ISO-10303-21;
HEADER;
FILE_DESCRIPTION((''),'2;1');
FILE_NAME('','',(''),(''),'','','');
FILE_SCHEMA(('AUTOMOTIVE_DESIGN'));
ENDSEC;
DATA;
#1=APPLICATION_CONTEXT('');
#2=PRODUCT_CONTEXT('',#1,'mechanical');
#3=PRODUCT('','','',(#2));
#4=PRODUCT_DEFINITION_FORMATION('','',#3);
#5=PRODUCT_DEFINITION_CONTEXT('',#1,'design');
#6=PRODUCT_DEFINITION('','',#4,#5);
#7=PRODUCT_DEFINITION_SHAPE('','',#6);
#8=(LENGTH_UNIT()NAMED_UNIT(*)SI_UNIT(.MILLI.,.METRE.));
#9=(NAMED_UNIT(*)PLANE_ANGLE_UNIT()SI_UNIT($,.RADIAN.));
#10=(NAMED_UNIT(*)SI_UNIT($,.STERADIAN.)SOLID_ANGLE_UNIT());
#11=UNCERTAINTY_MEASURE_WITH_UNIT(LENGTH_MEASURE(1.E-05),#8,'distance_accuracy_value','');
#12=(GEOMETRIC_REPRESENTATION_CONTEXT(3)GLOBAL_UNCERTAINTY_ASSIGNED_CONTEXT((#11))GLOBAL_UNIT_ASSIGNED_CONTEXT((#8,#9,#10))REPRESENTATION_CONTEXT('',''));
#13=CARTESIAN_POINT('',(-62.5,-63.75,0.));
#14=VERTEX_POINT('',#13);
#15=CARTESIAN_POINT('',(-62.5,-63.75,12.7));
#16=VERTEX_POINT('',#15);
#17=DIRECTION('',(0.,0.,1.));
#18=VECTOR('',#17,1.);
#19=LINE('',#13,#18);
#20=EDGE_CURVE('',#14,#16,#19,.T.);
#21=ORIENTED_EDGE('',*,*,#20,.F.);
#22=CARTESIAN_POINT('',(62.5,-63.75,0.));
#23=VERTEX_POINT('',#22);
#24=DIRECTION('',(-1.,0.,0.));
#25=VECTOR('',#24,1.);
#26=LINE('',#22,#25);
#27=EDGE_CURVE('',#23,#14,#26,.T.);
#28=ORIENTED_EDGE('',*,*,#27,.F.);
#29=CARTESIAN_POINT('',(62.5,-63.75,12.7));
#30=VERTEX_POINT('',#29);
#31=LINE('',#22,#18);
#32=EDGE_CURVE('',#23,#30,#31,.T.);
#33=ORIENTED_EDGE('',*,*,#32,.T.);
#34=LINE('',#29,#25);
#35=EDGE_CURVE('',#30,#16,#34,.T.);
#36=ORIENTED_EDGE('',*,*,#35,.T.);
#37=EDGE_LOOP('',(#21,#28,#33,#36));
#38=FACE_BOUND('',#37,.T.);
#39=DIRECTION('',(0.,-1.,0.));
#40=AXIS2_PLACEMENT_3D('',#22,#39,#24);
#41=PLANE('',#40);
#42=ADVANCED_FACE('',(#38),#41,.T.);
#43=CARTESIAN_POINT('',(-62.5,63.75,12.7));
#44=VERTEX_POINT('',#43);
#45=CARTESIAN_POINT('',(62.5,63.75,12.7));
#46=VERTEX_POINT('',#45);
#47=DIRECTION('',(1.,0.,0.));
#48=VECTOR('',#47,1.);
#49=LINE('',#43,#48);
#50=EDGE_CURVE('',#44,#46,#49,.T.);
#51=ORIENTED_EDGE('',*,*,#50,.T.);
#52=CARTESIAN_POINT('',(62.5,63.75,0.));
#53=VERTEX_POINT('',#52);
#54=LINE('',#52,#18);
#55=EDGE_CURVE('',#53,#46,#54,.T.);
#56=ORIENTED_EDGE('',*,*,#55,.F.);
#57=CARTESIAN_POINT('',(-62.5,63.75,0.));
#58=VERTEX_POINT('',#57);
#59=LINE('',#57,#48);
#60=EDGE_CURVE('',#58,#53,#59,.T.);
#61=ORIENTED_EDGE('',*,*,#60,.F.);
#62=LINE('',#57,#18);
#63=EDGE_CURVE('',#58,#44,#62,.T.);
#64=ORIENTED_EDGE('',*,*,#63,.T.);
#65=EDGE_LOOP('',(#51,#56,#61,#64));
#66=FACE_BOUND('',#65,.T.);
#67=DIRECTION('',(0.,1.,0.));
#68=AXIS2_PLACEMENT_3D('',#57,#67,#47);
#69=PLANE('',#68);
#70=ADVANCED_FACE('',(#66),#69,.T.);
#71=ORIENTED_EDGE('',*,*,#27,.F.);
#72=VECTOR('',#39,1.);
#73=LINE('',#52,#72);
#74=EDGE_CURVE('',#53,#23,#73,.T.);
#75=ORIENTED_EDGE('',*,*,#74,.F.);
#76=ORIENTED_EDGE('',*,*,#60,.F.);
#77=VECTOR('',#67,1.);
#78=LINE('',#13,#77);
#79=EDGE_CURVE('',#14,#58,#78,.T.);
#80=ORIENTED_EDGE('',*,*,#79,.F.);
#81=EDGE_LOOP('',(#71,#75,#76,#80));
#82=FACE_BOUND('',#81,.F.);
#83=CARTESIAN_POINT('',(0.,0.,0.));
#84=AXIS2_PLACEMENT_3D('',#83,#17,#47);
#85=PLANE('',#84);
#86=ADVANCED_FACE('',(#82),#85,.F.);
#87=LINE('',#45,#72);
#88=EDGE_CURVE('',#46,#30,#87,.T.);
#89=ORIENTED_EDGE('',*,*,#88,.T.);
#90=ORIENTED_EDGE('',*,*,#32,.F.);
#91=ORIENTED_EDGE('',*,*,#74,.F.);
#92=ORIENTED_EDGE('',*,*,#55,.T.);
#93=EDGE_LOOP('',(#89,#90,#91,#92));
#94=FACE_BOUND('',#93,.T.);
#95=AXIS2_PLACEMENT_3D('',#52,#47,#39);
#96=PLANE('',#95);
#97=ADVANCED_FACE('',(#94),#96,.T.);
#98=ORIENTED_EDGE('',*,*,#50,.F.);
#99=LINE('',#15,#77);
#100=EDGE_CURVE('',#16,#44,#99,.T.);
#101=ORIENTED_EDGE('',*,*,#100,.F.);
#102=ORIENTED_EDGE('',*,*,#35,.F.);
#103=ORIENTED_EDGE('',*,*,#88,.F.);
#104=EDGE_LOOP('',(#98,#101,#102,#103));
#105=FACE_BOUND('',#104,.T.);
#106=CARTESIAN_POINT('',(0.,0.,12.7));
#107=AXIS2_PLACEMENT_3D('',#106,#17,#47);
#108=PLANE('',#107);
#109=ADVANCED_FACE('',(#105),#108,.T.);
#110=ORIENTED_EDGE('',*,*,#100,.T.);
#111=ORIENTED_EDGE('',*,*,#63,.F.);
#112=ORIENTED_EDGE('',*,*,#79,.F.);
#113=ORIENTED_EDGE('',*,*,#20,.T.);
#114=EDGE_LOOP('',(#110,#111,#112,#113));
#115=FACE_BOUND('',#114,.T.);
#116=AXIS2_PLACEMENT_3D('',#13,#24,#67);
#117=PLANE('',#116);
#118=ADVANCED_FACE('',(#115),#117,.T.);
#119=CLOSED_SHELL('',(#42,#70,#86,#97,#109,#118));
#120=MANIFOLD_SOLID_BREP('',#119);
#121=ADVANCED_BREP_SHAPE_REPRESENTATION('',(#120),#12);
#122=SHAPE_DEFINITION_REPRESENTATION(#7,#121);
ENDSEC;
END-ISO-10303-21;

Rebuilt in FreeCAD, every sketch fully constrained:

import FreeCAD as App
import Part
import Sketcher

V = App.Vector

doc = App.newDocument("Part")
body = doc.addObject("PartDesign::Body", "Body")

# Sketch on XY plane
sketch1 = body.newObject("Sketcher::SketchObject", "Sketch")
sketch1.AttachmentSupport = (doc.getObject("XY_Plane"), [""])
sketch1.MapMode = "FlatFace"
sketch1.addGeometry([
    Part.LineSegment(V(62, 64, 0), V(-62, 64, 0)),
    Part.LineSegment(V(-62, 64, 0), V(-62, -64, 0)),
    Part.LineSegment(V(-62, -64, 0), V(62, -64, 0)),
    Part.LineSegment(V(62, -64, 0), V(62, 64, 0)),
], False)
sketch1.addConstraint([
    Sketcher.Constraint("Coincident", 0, 2, 1, 1),
    Sketcher.Constraint("Coincident", 1, 2, 2, 1),
    Sketcher.Constraint("Coincident", 2, 2, 3, 1),
    Sketcher.Constraint("Coincident", 3, 2, 0, 1),
    Sketcher.Constraint("Horizontal", 0),
    Sketcher.Constraint("Vertical", 1),
    Sketcher.Constraint("Horizontal", 2),
    Sketcher.Constraint("Vertical", 3),
    Sketcher.Constraint("Symmetric", 0, 2, 2, 2, -1, 1),
    Sketcher.Constraint("DistanceX", 0, 2, 0, 1, 125.0),
    Sketcher.Constraint("DistanceY", 1, 2, 1, 1, 127.5),
])
pad1 = body.newObject("PartDesign::Pad", "Pad")
pad1.Profile = sketch1
pad1.Length = 12.7

doc.recompute()
